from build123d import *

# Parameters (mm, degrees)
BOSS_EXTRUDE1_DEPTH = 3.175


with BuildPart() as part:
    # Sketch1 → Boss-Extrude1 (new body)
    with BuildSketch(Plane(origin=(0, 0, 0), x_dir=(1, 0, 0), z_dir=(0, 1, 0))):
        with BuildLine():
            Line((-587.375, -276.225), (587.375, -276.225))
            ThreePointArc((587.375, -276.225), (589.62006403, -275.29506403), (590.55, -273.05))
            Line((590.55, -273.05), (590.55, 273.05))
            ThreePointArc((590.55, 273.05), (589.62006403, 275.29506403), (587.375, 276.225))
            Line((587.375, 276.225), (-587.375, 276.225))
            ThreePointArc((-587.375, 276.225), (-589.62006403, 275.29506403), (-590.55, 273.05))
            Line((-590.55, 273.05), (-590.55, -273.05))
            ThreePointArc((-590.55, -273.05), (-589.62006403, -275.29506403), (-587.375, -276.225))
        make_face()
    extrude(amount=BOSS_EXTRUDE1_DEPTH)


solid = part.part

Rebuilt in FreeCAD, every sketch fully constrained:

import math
import FreeCAD as App
import Part
import Sketcher
Q = App.Units.Quantity

doc = App.newDocument("Part")
body = doc.addObject("PartDesign::Body", "Body")

# Sketch on XZ plane
sketch1 = doc.addObject("Sketcher::SketchObject", "Sketch")
body.addObject(sketch1)
sketch1.AttachmentSupport = (doc.XZ_Plane, [""])
sketch1.MapMode = "FlatFace"
sketch1.addGeometry([
    Part.LineSegment(App.Vector(-587.4, 276.2, 0), App.Vector(587.4, 276.2, 0)),  # 0
    Part.ArcOfCircle(Part.Circle(App.Vector(587.4, 273, 0), App.Vector(0, 0, 1), 3.2), math.radians(0), math.radians(90)),  # 1
    Part.LineSegment(App.Vector(590.5, 273.1, 0), App.Vector(590.5, -273.1, 0)),  # 2
    Part.ArcOfCircle(Part.Circle(App.Vector(587.4, -273, 0), App.Vector(0, 0, 1), 3.2), math.radians(-90), math.radians(0)),  # 3
    Part.LineSegment(App.Vector(587.4, -276.2, 0), App.Vector(-587.4, -276.2, 0)),  # 4
    Part.ArcOfCircle(Part.Circle(App.Vector(-587.4, -273, 0), App.Vector(0, 0, 1), 3.2), math.radians(-180), math.radians(-90)),  # 5
    Part.LineSegment(App.Vector(-590.5, -273.1, 0), App.Vector(-590.5, 273.1, 0)),  # 6
    Part.ArcOfCircle(Part.Circle(App.Vector(-587.4, 273, 0), App.Vector(0, 0, 1), 3.2), math.radians(90), math.radians(180)),  # 7
], False)
sketch1.addConstraint([
    Sketcher.Constraint("Tangent", 0, 2, 1, 2),
    Sketcher.Constraint("Tangent", 1, 1, 2, 1),
    Sketcher.Constraint("Tangent", 2, 2, 3, 2),
    Sketcher.Constraint("Tangent", 3, 1, 4, 1),
    Sketcher.Constraint("Tangent", 4, 2, 5, 2),
    Sketcher.Constraint("Tangent", 5, 1, 6, 1),
    Sketcher.Constraint("Tangent", 6, 2, 7, 2),
    Sketcher.Constraint("Tangent", 7, 1, 0, 1),
    Sketcher.Constraint("Horizontal", 0),
    Sketcher.Constraint("Vertical", 2),
    Sketcher.Constraint("Horizontal", 4),
    Sketcher.Constraint("Vertical", 6),
    Sketcher.Constraint("Equal", 1, 3),
    Sketcher.Constraint("Equal", 3, 5),
    Sketcher.Constraint("Equal", 5, 7),
    Sketcher.Constraint("Symmetric", 1, 3, 5, 3, -1, 1),
    Sketcher.Constraint("DistanceY", 2, 2, 2, 1, Q("21.5 in")),
    Sketcher.Constraint("Radius", 1, Q("0.125 in")),
    Sketcher.Constraint("DistanceX", 0, 1, 0, 2, Q("46.25 in")),
])
pad1 = doc.addObject("PartDesign::Pad", "Pad")
body.addObject(pad1)
pad1.Profile = sketch1
pad1.Length = Q("0.125 in")
pad1.Reversed = True

doc.recompute()
